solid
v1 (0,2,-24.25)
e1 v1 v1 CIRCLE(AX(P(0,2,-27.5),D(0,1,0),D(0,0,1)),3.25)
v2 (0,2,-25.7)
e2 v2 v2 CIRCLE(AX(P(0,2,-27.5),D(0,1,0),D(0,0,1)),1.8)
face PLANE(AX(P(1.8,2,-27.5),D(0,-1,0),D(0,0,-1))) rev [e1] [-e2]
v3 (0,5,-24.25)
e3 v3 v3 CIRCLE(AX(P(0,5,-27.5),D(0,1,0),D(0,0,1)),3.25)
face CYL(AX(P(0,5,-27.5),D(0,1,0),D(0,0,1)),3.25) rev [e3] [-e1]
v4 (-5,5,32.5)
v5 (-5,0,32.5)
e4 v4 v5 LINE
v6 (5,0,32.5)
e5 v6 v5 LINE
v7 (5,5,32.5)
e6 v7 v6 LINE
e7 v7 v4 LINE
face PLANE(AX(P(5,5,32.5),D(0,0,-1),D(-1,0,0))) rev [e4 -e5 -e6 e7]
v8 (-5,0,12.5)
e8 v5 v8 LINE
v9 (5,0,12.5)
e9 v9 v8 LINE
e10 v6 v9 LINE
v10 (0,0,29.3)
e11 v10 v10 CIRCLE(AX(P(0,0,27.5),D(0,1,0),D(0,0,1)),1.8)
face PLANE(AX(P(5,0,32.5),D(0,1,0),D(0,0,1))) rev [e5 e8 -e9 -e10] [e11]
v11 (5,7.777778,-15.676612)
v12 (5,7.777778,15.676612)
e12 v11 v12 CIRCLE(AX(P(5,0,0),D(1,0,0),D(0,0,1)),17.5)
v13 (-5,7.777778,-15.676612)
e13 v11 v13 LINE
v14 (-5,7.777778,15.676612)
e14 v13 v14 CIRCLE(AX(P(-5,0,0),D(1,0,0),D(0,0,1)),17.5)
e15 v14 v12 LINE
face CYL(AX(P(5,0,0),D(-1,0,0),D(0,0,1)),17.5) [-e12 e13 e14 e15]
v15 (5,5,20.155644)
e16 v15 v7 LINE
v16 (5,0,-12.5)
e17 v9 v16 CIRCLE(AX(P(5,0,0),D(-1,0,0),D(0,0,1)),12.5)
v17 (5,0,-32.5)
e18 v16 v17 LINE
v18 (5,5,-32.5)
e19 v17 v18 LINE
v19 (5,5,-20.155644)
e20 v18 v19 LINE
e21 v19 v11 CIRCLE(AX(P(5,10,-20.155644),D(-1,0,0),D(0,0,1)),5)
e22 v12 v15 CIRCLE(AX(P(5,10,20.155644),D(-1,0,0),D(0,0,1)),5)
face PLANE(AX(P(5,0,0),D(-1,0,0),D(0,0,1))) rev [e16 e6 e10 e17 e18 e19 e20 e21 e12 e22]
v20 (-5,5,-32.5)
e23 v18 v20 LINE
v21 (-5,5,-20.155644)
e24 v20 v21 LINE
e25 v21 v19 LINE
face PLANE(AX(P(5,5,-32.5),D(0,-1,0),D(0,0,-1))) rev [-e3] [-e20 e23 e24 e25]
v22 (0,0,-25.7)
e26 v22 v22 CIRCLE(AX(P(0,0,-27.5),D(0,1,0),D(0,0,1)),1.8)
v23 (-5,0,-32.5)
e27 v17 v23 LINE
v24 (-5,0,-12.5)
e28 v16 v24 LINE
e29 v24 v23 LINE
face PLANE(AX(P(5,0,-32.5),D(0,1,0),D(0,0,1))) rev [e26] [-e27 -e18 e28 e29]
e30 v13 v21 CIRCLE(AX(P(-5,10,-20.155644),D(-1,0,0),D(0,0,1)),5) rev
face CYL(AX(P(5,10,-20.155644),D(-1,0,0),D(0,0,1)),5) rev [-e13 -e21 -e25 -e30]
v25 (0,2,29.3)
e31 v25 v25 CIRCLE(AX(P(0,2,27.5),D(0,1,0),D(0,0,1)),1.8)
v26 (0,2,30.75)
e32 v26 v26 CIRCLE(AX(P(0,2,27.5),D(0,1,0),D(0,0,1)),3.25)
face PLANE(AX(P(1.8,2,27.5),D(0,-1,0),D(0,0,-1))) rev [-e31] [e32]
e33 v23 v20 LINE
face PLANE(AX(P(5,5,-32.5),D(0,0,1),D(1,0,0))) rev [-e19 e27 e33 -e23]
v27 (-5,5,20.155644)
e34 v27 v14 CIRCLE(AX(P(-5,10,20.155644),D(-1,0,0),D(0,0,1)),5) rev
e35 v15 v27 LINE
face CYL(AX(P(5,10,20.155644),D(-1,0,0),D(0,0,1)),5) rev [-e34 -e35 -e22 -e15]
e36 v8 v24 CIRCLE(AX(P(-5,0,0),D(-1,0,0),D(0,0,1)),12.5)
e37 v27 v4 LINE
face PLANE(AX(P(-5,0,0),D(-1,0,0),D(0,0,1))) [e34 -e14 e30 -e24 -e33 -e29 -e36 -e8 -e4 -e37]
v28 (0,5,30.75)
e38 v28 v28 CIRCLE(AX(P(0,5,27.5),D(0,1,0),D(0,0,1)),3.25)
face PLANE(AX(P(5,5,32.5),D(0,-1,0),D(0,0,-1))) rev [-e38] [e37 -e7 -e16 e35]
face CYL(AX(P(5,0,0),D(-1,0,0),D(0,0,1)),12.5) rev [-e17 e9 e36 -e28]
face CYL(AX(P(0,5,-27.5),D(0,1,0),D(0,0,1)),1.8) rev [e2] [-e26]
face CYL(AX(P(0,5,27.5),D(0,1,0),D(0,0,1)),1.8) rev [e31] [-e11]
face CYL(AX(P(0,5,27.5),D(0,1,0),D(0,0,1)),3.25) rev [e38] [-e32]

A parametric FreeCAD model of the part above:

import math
import FreeCAD as App
import Part
import Sketcher


def edges_at(feature, points):
    """Names of the edges that pass closest to the given points."""
    edges = feature.Shape.Edges
    near = lambda p: min(range(len(edges)), key=lambda i: edges[i].distToShape(Part.Vertex(*p))[0])
    return sorted({f"Edge{near(p) + 1}" for p in points})

doc = App.newDocument("Part")
body = doc.addObject("PartDesign::Body", "Body")

sketch1 = body.newObject("Sketcher::SketchObject", "Sketch")
sketch1.AttachmentSupport = (doc.getObject("YZ_Plane"), [""])
sketch1.MapMode = "FlatFace"
sketch1.addGeometry([
    Part.LineSegment(App.Vector(0, 32, 0), App.Vector(0, 12, 0)),
    Part.ArcOfCircle(Part.Circle(App.Vector(0, 0, 0), App.Vector(0, 0, 1), 12), math.radians(-90), math.radians(90)),
    Part.LineSegment(App.Vector(0, -12, 0), App.Vector(0, -32, 0)),
    Part.LineSegment(App.Vector(0, -32, 0), App.Vector(5, -32, 0)),
    Part.LineSegment(App.Vector(5, -32, 0), App.Vector(5, -17, 0)),
    Part.ArcOfCircle(Part.Circle(App.Vector(0, 0, 0), App.Vector(0, 0, 1), 18), math.radians(-73), math.radians(73)),
    Part.LineSegment(App.Vector(5, 17, 0), App.Vector(5, 32, 0)),
    Part.LineSegment(App.Vector(5, 32, 0), App.Vector(0, 32, 0)),
], False)
sketch1.addConstraint([
    Sketcher.Constraint("Coincident", 0, 2, 1, 2),
    Sketcher.Constraint("Coincident", 1, 1, 2, 1),
    Sketcher.Constraint("Coincident", 2, 2, 3, 1),
    Sketcher.Constraint("Coincident", 3, 2, 4, 1),
    Sketcher.Constraint("Coincident", 4, 2, 5, 1),
    Sketcher.Constraint("Coincident", 5, 2, 6, 1),
    Sketcher.Constraint("Coincident", 6, 2, 7, 1),
    Sketcher.Constraint("Coincident", 7, 2, 0, 1),
    Sketcher.Constraint("Vertical", 0),
    Sketcher.Constraint("Vertical", 2),
    Sketcher.Constraint("Horizontal", 3),
    Sketcher.Constraint("Vertical", 4),
    Sketcher.Constraint("Vertical", 6),
    Sketcher.Constraint("Horizontal", 7),
    Sketcher.Constraint("Coincident", 1, 3, -1, 1),
    Sketcher.Constraint("Coincident", 5, 3, -1, 1),
    Sketcher.Constraint("Symmetric", 2, 2, 7, 2, -1, 1),
    Sketcher.Constraint("PointOnObject", 0, 2, -2),
    Sketcher.Constraint("Vertical", 4, 2, 5, 2),
    Sketcher.Constraint("Radius", 1, 12.5),
    Sketcher.Constraint("Radius", 5, 17.5),
    Sketcher.Constraint("DistanceX", 3, 1, 3, 2, 5.0),
    Sketcher.Constraint("DistanceY", 0, 2, 0, 1, 20.0),
])
pad1 = body.newObject("PartDesign::Pad", "Pad")
pad1.Profile = sketch1
pad1.Length = 10
pad1.Midplane = True

sketch2 = body.newObject("Sketcher::SketchObject", "Sketch001")
sketch2.AttachmentSupport = (doc.getObject("XZ_Plane"), [""])
sketch2.MapMode = "FlatFace"
sketch2.AttachmentOffset = App.Placement(App.Vector(0, 0, -5), App.Rotation())
sketch2.addGeometry([
    Part.Circle(App.Vector(0, 27.5, 0), App.Vector(0, 0, 1), 1.8),
    Part.Circle(App.Vector(0, -27.5, 0), App.Vector(0, 0, 1), 1.8),
], False)
sketch2.addConstraint([
    Sketcher.Constraint("Equal", 0, 1),
    Sketcher.Constraint("Symmetric", 0, 3, 1, 3, -1, 1),
    Sketcher.Constraint("PointOnObject", 0, 3, -2),
    Sketcher.Constraint("Diameter", 0, 3.6),
    Sketcher.Constraint("DistanceY", 1, 3, 0, 3, 55.0),
])
doc.recompute()
hole = body.newObject("PartDesign::Hole", "Hole")
hole.Profile = sketch2
hole.ThreadType = "None"
hole.Diameter = 3.6
hole.DepthType = "Dimension"
hole.Depth = 5
hole.DrillPoint = "Angled"
hole.DrillPointAngle = 118
hole.HoleCutType = "Counterbore"
hole.HoleCutDiameter = 6.5
hole.HoleCutDepth = 3
hole.Reversed = True
doc.recompute()

fillet = body.newObject("PartDesign::Fillet", "Fillet")
fillet.Base = (hole, edges_at(hole, [(0, 5, 16.771), (0, 5, -16.771)]))
fillet.Radius = 5

doc.recompute()
